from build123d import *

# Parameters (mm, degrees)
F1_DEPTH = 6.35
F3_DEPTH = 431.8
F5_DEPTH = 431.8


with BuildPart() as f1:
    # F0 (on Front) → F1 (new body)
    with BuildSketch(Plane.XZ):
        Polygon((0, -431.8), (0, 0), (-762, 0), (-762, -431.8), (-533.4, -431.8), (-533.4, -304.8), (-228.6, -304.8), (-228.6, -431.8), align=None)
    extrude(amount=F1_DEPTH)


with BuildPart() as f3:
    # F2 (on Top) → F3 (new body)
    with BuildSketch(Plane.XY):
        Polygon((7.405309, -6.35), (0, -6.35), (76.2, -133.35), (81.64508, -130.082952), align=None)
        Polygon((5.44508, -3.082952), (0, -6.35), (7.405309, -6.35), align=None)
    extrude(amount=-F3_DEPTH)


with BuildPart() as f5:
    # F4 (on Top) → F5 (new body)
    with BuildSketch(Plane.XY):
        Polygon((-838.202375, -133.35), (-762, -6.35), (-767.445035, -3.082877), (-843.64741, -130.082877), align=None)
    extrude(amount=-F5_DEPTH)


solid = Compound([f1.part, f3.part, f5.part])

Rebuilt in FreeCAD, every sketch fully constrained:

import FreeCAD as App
import Part
import Sketcher
Q = App.Units.Quantity

doc = App.newDocument("Part")
body = doc.addObject("PartDesign::Body", "Body")

sketch1 = body.newObject("Sketcher::SketchObject", "Sketch")
sketch1.AttachmentSupport = (doc.getObject("XZ_Plane"), [""])
sketch1.MapMode = "FlatFace"
sketch1.addGeometry([
    Part.LineSegment(App.Vector(0, -432, 0), App.Vector(0, 0, 0)),
    Part.LineSegment(App.Vector(0, 0, 0), App.Vector(-762, 0, 0)),
    Part.LineSegment(App.Vector(-762, 0, 0), App.Vector(-762, -432, 0)),
    Part.LineSegment(App.Vector(-762, -432, 0), App.Vector(-533, -432, 0)),
    Part.LineSegment(App.Vector(-533, -432, 0), App.Vector(-533, -305, 0)),
    Part.LineSegment(App.Vector(-533, -305, 0), App.Vector(-229, -305, 0)),
    Part.LineSegment(App.Vector(-229, -305, 0), App.Vector(-229, -432, 0)),
    Part.LineSegment(App.Vector(-229, -432, 0), App.Vector(0, -432, 0)),
], False)
sketch1.addConstraint([
    Sketcher.Constraint("Coincident", 0, 2, 1, 1),
    Sketcher.Constraint("Coincident", 1, 2, 2, 1),
    Sketcher.Constraint("Coincident", 2, 2, 3, 1),
    Sketcher.Constraint("Coincident", 3, 2, 4, 1),
    Sketcher.Constraint("Coincident", 4, 2, 5, 1),
    Sketcher.Constraint("Coincident", 5, 2, 6, 1),
    Sketcher.Constraint("Coincident", 6, 2, 7, 1),
    Sketcher.Constraint("Coincident", 7, 2, 0, 1),
    Sketcher.Constraint("Vertical", 0),
    Sketcher.Constraint("Horizontal", 1),
    Sketcher.Constraint("Vertical", 2),
    Sketcher.Constraint("Horizontal", 3),
    Sketcher.Constraint("Vertical", 4),
    Sketcher.Constraint("Horizontal", 5),
    Sketcher.Constraint("Vertical", 6),
    Sketcher.Constraint("Horizontal", 7),
    Sketcher.Constraint("Coincident", 0, 2, -1, 1),
    Sketcher.Constraint("Horizontal", 3, 2, 6, 2),
    Sketcher.Constraint("Equal", 3, 7),
    Sketcher.Constraint("DistanceX", 1, 2, 1, 1, Q("30 in")),
    Sketcher.Constraint("DistanceX", 3, 1, 3, 2, Q("9 in")),
    Sketcher.Constraint("DistanceY", 0, 1, 0, 2, Q("17 in")),
    Sketcher.Constraint("DistanceY", 4, 1, 4, 2, Q("5 in")),
])
pad1 = body.newObject("PartDesign::Pad", "Pad")
pad1.Profile = sketch1
pad1.Length = Q("0.25 in")
body2 = doc.addObject("PartDesign::Body", "Body001")

sketch2 = body2.newObject("Sketcher::SketchObject", "Sketch001")
sketch2.AttachmentSupport = (doc.getObject("XY_Plane001"), [""])
sketch2.MapMode = "FlatFace"
sketch2.addGeometry([
    Part.LineSegment(App.Vector(0, -6.3, 0), App.Vector(76.2, -133.3, 0)),
    Part.LineSegment(App.Vector(76.2, -133.3, 0), App.Vector(81.6, -130.1, 0)),
    Part.LineSegment(App.Vector(81.6, -130.1, 0), App.Vector(7.4, -6.3, 0)),
    Part.LineSegment(App.Vector(7.4, -6.3, 0), App.Vector(5.4, -3.1, 0)),
    Part.LineSegment(App.Vector(5.4, -3.1, 0), App.Vector(0, -6.3, 0)),
], False)
sketch2.addConstraint([
    Sketcher.Constraint("Coincident", 0, 2, 1, 1),
    Sketcher.Constraint("Coincident", 1, 2, 2, 1),
    Sketcher.Constraint("Coincident", 2, 2, 3, 1),
    Sketcher.Constraint("Coincident", 3, 2, 4, 1),
    Sketcher.Constraint("Coincident", 4, 2, 0, 1),
    Sketcher.Constraint("PointOnObject", 4, 2, -2),
    Sketcher.Constraint("Perpendicular", 0, 1),
    Sketcher.Constraint("Perpendicular", 1, 2),
    Sketcher.Constraint("Parallel", 2, 3),
    Sketcher.Constraint("Perpendicular", 3, 4),
    Sketcher.Constraint("Horizontal", 2, 2, 4, 2),
    Sketcher.Constraint("DistanceX", -1, 1, 0, 2, Q("3 in")),
    Sketcher.Constraint("DistanceY", 0, 2, 2, 2, Q("5 in")),
    Sketcher.Constraint("Distance", 1, Q("0.25 in")),
    Sketcher.Constraint("DistanceY", 0, 2, -1, 1, Q("5.25 in")),
])
pad2 = body2.newObject("PartDesign::Pad", "Pad001")
pad2.Profile = sketch2
pad2.Length = Q("17 in")
pad2.Reversed = True
body3 = doc.addObject("PartDesign::Body", "Body002")

sketch3 = body3.newObject("Sketcher::SketchObject", "Sketch002")
sketch3.AttachmentSupport = (doc.getObject("XY_Plane002"), [""])
sketch3.MapMode = "FlatFace"
sketch3.addGeometry([
    Part.LineSegment(App.Vector(-838, -133, 0), App.Vector(-762, -6, 0)),
    Part.LineSegment(App.Vector(-762, -6, 0), App.Vector(-767, -3, 0)),
    Part.LineSegment(App.Vector(-767, -3, 0), App.Vector(-844, -130, 0)),
    Part.LineSegment(App.Vector(-844, -130, 0), App.Vector(-838, -133, 0)),
], False)
sketch3.addConstraint([
    Sketcher.Constraint("Coincident", 0, 2, 1, 1),
    Sketcher.Constraint("Coincident", 1, 2, 2, 1),
    Sketcher.Constraint("Coincident", 2, 2, 3, 1),
    Sketcher.Constraint("Coincident", 3, 2, 0, 1),
    Sketcher.Constraint("Perpendicular", 0, 1),
    Sketcher.Constraint("Perpendicular", 1, 2),
    Sketcher.Constraint("Perpendicular", 2, 3),
    Sketcher.Constraint("DistanceX", 0, 2, -1, 1, Q("30 in")),
    Sketcher.Constraint("DistanceY", 2, 2, 1, 2, Q("5 in")),
    Sketcher.Constraint("Distance", 1, Q("0.25 in")),
    Sketcher.Constraint("DistanceY", 0, 2, -1, 1, Q("0.25 in")),
    Sketcher.Constraint("Distance", 0, Q("5.831 in")),
])
pad3 = body3.newObject("PartDesign::Pad", "Pad002")
pad3.Profile = sketch3
pad3.Length = Q("17 in")
pad3.Reversed = True

doc.recompute()
